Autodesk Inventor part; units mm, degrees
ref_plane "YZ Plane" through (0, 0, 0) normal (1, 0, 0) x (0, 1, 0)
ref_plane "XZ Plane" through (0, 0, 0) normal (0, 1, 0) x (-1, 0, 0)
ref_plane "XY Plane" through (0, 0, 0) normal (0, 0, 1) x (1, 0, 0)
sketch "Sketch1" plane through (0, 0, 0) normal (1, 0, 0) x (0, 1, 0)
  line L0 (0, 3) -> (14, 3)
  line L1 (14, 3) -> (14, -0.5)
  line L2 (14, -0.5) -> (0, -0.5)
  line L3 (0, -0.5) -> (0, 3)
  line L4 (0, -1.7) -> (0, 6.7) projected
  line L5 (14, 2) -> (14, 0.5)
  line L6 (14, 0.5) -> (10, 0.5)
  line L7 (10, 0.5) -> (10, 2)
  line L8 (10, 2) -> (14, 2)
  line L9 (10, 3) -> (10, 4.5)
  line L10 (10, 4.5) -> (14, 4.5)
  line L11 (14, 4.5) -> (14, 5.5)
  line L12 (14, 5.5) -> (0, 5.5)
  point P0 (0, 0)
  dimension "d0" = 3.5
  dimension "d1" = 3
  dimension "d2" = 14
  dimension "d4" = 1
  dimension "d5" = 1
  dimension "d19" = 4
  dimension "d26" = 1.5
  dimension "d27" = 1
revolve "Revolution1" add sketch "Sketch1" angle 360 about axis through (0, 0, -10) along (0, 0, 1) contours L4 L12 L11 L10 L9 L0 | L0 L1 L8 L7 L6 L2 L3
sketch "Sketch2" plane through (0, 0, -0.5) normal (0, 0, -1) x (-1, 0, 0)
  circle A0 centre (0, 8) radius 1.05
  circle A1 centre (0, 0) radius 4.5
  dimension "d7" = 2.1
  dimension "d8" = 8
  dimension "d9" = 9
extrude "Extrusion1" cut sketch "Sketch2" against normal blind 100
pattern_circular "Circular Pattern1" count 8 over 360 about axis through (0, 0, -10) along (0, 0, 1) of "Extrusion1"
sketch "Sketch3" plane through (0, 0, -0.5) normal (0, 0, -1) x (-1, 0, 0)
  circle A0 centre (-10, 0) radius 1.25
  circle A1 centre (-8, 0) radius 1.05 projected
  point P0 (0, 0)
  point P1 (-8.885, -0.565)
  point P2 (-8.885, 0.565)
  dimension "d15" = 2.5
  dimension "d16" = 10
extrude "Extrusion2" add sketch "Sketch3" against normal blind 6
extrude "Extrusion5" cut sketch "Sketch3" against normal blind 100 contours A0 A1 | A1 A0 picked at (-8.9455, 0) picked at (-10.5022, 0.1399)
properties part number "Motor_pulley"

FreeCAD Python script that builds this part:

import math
import FreeCAD as App
import Part
import Sketcher

doc = App.newDocument("Part")
body = doc.addObject("PartDesign::Body", "Body")

# Sketch on YZ plane
sketch1 = body.newObject("Sketcher::SketchObject", "Sketch")
sketch1.AttachmentSupport = (doc.getObject("YZ_Plane"), [""])
sketch1.MapMode = "FlatFace"
sketch1.addGeometry(Part.LineSegment(App.Vector(0, 5.5, 0), App.Vector(0, -0.5, 0)), False)
sketch1.addGeometry(Part.LineSegment(App.Vector(0, -0.5, 0), App.Vector(14, -0.5, 0)), False)
sketch1.addGeometry(Part.LineSegment(App.Vector(14, -0.5, 0), App.Vector(14, 0.5, 0)), False)
sketch1.addGeometry(Part.LineSegment(App.Vector(14, 0.5, 0), App.Vector(10, 0.5, 0)), False)
sketch1.addGeometry(Part.LineSegment(App.Vector(10, 0.5, 0), App.Vector(10, 2, 0)), False)
sketch1.addGeometry(Part.LineSegment(App.Vector(10, 2, 0), App.Vector(14, 2, 0)), False)
sketch1.addGeometry(Part.LineSegment(App.Vector(14, 2, 0), App.Vector(14, 3, 0)), False)
sketch1.addGeometry(Part.LineSegment(App.Vector(14, 3, 0), App.Vector(10, 3, 0)), False)
sketch1.addGeometry(Part.LineSegment(App.Vector(10, 3, 0), App.Vector(10, 4.5, 0)), False)
sketch1.addGeometry(Part.LineSegment(App.Vector(10, 4.5, 0), App.Vector(14, 4.5, 0)), False)
sketch1.addGeometry(Part.LineSegment(App.Vector(14, 4.5, 0), App.Vector(14, 5.5, 0)), False)
sketch1.addGeometry(Part.LineSegment(App.Vector(14, 5.5, 0), App.Vector(0, 5.5, 0)), False)
sketch1.addConstraint(Sketcher.Constraint("Coincident", 0, 2, 1, 1))
sketch1.addConstraint(Sketcher.Constraint("Coincident", 1, 2, 2, 1))
sketch1.addConstraint(Sketcher.Constraint("Coincident", 2, 2, 3, 1))
sketch1.addConstraint(Sketcher.Constraint("Coincident", 3, 2, 4, 1))
sketch1.addConstraint(Sketcher.Constraint("Coincident", 4, 2, 5, 1))
sketch1.addConstraint(Sketcher.Constraint("Coincident", 5, 2, 6, 1))
sketch1.addConstraint(Sketcher.Constraint("Coincident", 6, 2, 7, 1))
sketch1.addConstraint(Sketcher.Constraint("Coincident", 7, 2, 8, 1))
sketch1.addConstraint(Sketcher.Constraint("Coincident", 8, 2, 9, 1))
sketch1.addConstraint(Sketcher.Constraint("Coincident", 9, 2, 10, 1))
sketch1.addConstraint(Sketcher.Constraint("Coincident", 10, 2, 11, 1))
sketch1.addConstraint(Sketcher.Constraint("Coincident", 11, 2, 0, 1))
sketch1.addConstraint(Sketcher.Constraint("Vertical", 0))
sketch1.addConstraint(Sketcher.Constraint("Horizontal", 1))
sketch1.addConstraint(Sketcher.Constraint("Vertical", 2))
sketch1.addConstraint(Sketcher.Constraint("Horizontal", 3))
sketch1.addConstraint(Sketcher.Constraint("Vertical", 4))
sketch1.addConstraint(Sketcher.Constraint("Horizontal", 5))
sketch1.addConstraint(Sketcher.Constraint("Vertical", 6))
sketch1.addConstraint(Sketcher.Constraint("Horizontal", 7))
sketch1.addConstraint(Sketcher.Constraint("Vertical", 8))
sketch1.addConstraint(Sketcher.Constraint("Horizontal", 9))
sketch1.addConstraint(Sketcher.Constraint("Vertical", 10))
sketch1.addConstraint(Sketcher.Constraint("Horizontal", 11))
sketch1.addConstraint(Sketcher.Constraint("PointOnObject", 0, 2, -2))
sketch1.addConstraint(Sketcher.Constraint("Vertical", 2, 2, 5, 2))
sketch1.addConstraint(Sketcher.Constraint("Vertical", 4, 2, 7, 2))
sketch1.addConstraint(Sketcher.Constraint("Vertical", 6, 2, 9, 2))
sketch1.addConstraint(Sketcher.Constraint("Equal", 2, 6))
sketch1.addConstraint(Sketcher.Constraint("Equal", 4, 8))
sketch1.addConstraint(Sketcher.Constraint("Equal", 6, 10))
sketch1.addConstraint(Sketcher.Constraint("DistanceX", 1, 1, 1, 2, 14.0))
sketch1.addConstraint(Sketcher.Constraint("DistanceX", 3, 2, 3, 1, 4.0))
sketch1.addConstraint(Sketcher.Constraint("DistanceY", 2, 1, 2, 2, 1.0))
sketch1.addConstraint(Sketcher.Constraint("DistanceY", 4, 1, 4, 2, 1.5))
sketch1.addConstraint(Sketcher.Constraint("DistanceY", -1, 1, 6, 2, 3.0))
revolution = body.newObject("PartDesign::Revolution", "Revolution")
revolution.Profile = sketch1
revolution.ReferenceAxis = (sketch1, ["V_Axis"])
revolution.Angle = 360

# Sketch on XY plane
sketch2 = body.newObject("Sketcher::SketchObject", "Sketch001")
sketch2.AttachmentSupport = (doc.getObject("XY_Plane"), [""])
sketch2.MapMode = "FlatFace"
sketch2.AttachmentOffset = App.Placement(App.Vector(0, 0, -0.5), App.Rotation())
sketch2.addGeometry(Part.Circle(App.Vector(0, 8, 0), App.Vector(0, 0, 1), 1.1), False)
sketch2.addGeometry(Part.Circle(App.Vector(0, 0, 0), App.Vector(0, 0, 1), 4.5), False)
sketch2.addConstraint(Sketcher.Constraint("Coincident", 1, 3, -1, 1))
sketch2.addConstraint(Sketcher.Constraint("PointOnObject", 0, 3, -2))
sketch2.addConstraint(Sketcher.Constraint("Diameter", 1, 9.0))
sketch2.addConstraint(Sketcher.Constraint("Diameter", 0, 2.1))
sketch2.addConstraint(Sketcher.Constraint("DistanceY", -1, 1, 0, 3, 8.0))
pocket1 = body.newObject("PartDesign::Pocket", "Pocket")
pocket1.Profile = sketch2
pocket1.Length = 100
pocket1.Reversed = True
doc.recompute()

polarpattern = body.newObject("PartDesign::PolarPattern", "PolarPattern")
polarpattern.Originals = [pocket1]
polarpattern.Axis = (doc.getObject("Z_Axis"), [""])
polarpattern.Angle = 360
polarpattern.Occurrences = 8
body.Tip = polarpattern

# Sketch on XY plane
sketch3 = body.newObject("Sketcher::SketchObject", "Sketch002")
sketch3.AttachmentSupport = (doc.getObject("XY_Plane"), [""])
sketch3.MapMode = "FlatFace"
sketch3.AttachmentOffset = App.Placement(App.Vector(0, 0, -0.5), App.Rotation())
sketch3.addGeometry(Part.ArcOfCircle(Part.Circle(App.Vector(8, 0, 0), App.Vector(0, 0, 1), 1.1), math.radians(33), math.radians(327)), False)
sketch3.addGeometry(Part.ArcOfCircle(Part.Circle(App.Vector(10, 0, 0), App.Vector(0, 0, 1), 1.2), math.radians(-153), math.radians(153)), False)
sketch3.addConstraint(Sketcher.Constraint("Coincident", 0, 1, 1, 2))
sketch3.addConstraint(Sketcher.Constraint("Coincident", 1, 1, 0, 2))
sketch3.addConstraint(Sketcher.Constraint("Symmetric", 0, 1, 1, 1, -1))
sketch3.addConstraint(Sketcher.Constraint("Radius", 1, 1.25))
sketch3.addConstraint(Sketcher.Constraint("DistanceX", -1, 1, 1, 3, 10.0))
sketch3.addConstraint(Sketcher.Constraint("Radius", 0, 1.05))
sketch3.addConstraint(Sketcher.Constraint("DistanceX", -1, 1, 0, 3, 8.0))
pad1 = body.newObject("PartDesign::Pad", "Pad")
pad1.Profile = sketch3
pad1.Length = 6

# Sketch on XY plane
sketch4 = body.newObject("Sketcher::SketchObject", "Sketch003")
sketch4.AttachmentSupport = (doc.getObject("XY_Plane"), [""])
sketch4.MapMode = "FlatFace"
sketch4.AttachmentOffset = App.Placement(App.Vector(0, 0, -0.5), App.Rotation())
sketch4.addGeometry(Part.Circle(App.Vector(10, 0, 0), App.Vector(0, 0, 1), 1.2), False)
sketch4.addConstraint(Sketcher.Constraint("PointOnObject", 0, 3, -1))
sketch4.addConstraint(Sketcher.Constraint("Diameter", 0, 2.5))
sketch4.addConstraint(Sketcher.Constraint("DistanceX", -1, 1, 0, 3, 10.0))
pocket2 = body.newObject("PartDesign::Pocket", "Pocket001")
pocket2.Profile = sketch4
pocket2.Length = 100
pocket2.Reversed = True

doc.recompute()
